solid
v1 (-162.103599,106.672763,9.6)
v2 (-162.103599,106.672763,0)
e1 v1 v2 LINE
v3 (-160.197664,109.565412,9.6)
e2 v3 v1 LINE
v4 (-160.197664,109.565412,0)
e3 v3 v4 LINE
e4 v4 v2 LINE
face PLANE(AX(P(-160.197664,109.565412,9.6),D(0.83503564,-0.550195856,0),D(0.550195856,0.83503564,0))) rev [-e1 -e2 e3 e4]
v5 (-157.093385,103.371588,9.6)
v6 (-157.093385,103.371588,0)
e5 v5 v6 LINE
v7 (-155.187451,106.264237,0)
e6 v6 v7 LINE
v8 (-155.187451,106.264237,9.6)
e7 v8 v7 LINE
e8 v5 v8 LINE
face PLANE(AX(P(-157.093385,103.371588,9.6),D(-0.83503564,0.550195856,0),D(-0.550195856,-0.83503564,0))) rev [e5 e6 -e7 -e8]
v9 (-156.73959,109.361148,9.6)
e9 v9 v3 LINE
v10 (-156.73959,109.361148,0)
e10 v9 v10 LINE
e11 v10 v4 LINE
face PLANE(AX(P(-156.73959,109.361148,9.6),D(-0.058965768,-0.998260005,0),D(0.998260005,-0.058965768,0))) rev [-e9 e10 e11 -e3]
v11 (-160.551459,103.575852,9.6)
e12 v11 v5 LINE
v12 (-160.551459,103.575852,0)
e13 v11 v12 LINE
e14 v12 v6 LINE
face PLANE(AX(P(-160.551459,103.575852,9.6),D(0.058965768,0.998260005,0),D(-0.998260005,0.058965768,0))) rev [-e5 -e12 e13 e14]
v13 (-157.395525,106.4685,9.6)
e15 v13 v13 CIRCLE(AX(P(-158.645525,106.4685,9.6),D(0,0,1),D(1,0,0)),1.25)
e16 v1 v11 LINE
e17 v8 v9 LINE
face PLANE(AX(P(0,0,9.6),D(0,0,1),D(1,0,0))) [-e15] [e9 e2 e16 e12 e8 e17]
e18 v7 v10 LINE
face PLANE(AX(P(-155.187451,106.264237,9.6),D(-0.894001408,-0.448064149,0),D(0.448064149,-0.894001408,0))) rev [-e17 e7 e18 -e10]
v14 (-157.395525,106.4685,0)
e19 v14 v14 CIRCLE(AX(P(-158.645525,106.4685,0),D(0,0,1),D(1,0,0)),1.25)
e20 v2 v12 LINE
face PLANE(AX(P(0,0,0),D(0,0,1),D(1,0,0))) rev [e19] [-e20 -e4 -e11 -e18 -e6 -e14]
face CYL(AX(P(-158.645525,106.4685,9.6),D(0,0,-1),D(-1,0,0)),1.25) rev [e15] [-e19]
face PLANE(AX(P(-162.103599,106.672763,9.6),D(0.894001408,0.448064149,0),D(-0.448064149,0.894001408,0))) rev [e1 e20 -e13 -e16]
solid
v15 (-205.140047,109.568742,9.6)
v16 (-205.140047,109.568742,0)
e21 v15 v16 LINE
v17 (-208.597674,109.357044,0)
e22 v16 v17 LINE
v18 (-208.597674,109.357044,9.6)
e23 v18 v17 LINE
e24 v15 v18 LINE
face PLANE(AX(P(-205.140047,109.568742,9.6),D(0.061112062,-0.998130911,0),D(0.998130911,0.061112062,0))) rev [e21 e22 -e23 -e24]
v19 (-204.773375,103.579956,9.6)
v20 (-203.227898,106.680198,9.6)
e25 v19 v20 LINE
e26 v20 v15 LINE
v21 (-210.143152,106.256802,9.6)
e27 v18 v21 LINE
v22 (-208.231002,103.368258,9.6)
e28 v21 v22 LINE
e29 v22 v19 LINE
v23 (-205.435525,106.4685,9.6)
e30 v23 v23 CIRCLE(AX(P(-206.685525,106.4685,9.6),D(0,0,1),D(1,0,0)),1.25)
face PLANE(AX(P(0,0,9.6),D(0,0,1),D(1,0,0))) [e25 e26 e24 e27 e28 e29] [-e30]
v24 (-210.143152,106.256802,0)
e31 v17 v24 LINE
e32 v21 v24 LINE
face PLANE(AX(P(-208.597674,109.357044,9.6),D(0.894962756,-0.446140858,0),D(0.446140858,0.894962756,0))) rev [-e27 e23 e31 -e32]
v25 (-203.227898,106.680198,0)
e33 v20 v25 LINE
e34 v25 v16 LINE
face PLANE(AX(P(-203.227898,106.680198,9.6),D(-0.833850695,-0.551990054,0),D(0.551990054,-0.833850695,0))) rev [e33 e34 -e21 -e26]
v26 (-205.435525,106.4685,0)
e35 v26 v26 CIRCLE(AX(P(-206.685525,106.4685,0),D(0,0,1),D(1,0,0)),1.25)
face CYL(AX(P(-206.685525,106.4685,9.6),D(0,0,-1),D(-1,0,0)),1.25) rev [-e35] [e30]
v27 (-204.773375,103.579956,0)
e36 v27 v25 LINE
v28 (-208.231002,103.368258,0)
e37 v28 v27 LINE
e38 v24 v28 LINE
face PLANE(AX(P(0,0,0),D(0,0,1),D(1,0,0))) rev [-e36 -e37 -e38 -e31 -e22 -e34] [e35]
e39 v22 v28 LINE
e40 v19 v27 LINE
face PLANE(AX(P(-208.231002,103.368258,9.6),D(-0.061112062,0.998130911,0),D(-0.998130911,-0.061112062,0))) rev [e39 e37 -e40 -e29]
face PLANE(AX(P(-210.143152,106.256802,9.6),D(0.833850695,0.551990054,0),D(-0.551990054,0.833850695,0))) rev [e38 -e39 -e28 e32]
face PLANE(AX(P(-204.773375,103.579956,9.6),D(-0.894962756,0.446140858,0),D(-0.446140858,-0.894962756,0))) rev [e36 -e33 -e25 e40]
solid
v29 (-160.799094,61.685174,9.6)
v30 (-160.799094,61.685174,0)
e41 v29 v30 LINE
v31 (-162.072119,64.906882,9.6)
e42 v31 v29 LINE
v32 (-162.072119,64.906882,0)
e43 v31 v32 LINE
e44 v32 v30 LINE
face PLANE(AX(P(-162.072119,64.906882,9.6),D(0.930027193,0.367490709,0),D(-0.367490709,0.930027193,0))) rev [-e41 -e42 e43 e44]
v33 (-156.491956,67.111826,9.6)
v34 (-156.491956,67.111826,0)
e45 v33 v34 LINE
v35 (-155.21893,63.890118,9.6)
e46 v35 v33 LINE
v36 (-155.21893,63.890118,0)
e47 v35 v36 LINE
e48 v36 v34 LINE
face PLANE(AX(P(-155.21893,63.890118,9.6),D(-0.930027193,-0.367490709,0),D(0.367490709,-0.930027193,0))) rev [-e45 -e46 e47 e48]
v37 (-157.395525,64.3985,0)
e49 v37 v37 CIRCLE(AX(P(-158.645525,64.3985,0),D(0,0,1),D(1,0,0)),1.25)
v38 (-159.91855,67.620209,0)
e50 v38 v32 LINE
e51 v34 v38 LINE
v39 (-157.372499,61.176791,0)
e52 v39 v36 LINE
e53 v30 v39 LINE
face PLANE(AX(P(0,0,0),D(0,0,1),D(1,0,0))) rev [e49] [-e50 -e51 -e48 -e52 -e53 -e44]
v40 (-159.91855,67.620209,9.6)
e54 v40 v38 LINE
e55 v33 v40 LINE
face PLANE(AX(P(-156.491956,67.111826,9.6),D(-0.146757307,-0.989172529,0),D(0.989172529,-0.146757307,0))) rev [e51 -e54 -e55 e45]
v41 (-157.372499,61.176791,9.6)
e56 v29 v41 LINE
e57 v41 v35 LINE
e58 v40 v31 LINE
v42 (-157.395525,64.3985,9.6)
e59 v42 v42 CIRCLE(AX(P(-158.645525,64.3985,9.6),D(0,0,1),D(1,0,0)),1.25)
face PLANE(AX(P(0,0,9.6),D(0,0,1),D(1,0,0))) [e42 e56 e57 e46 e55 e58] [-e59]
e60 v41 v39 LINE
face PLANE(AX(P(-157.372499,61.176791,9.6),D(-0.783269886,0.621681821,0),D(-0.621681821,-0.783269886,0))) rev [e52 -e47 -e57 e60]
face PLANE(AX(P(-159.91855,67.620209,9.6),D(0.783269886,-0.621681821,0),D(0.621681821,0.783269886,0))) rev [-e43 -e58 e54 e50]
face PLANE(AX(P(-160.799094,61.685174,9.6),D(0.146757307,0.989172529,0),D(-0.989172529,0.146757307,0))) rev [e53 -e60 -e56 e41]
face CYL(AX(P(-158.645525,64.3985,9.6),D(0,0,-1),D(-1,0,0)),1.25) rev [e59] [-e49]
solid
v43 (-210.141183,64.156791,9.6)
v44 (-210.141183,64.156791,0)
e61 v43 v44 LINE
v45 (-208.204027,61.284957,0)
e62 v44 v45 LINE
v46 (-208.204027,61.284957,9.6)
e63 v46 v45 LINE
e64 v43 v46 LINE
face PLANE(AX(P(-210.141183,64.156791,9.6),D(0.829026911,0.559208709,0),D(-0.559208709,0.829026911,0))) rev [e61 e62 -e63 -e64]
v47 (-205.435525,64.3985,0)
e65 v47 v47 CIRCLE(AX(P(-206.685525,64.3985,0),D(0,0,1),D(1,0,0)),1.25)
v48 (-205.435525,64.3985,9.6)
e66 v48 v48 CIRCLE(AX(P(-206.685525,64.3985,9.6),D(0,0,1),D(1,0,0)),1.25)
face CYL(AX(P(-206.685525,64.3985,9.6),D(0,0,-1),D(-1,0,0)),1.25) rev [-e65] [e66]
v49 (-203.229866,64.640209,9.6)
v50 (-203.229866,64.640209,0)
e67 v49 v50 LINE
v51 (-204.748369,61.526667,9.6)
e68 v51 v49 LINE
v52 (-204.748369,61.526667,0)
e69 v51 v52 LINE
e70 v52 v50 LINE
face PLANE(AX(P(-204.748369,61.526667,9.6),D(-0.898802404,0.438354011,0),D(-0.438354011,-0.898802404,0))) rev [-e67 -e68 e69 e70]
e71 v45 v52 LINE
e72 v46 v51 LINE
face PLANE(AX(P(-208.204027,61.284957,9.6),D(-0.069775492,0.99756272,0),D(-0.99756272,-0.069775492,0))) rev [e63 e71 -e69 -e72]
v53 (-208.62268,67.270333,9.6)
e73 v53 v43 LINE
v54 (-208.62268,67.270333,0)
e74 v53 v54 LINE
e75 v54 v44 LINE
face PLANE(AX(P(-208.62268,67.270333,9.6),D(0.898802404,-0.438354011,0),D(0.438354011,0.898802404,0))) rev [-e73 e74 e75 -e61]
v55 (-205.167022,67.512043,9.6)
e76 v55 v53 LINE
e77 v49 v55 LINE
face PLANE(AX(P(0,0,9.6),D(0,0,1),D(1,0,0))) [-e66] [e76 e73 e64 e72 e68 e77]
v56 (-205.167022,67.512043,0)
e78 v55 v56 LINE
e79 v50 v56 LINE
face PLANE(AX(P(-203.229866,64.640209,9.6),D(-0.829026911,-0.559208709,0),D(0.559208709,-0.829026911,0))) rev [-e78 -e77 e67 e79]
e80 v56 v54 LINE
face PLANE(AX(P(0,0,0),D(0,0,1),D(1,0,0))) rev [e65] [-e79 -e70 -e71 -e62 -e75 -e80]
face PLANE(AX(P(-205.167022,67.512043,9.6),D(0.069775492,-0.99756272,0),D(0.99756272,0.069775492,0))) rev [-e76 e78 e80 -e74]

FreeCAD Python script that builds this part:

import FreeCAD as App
import Part
import Sketcher

V = App.Vector


def add_polygon(sketch, points):
    """Adds a closed chain of lines whose ends are joined by coincident constraints."""
    first, n = sketch.GeometryCount, len(points)
    for a, b in zip(points, points[1:] + points[:1]):
        sketch.addGeometry(Part.LineSegment(App.Vector(*a, 0), App.Vector(*b, 0)), False)
    for i in range(n):
        sketch.addConstraint(Sketcher.Constraint("Coincident", first + i, 2, first + (i + 1) % n, 1))

doc = App.newDocument("Part")
body = doc.addObject("PartDesign::Body", "Body")

# Sketch on XY plane
sketch1 = body.newObject("Sketcher::SketchObject", "Sketch")
sketch1.AttachmentSupport = (doc.getObject("XY_Plane"), [""])
sketch1.MapMode = "FlatFace"
add_polygon(sketch1, [(-204.8, 103.6), (-203.2, 106.7), (-205.1, 109.6), (-208.6, 109.4), (-210.1, 106.3), (-208.2, 103.4)])  # lines 0-5
sketch1.addGeometry(Part.Circle(V(-206.7, 106.5, 0), V(0, 0, 1), 1.2), False)  # 6
sketch1.addConstraint([
    Sketcher.Constraint("Parallel", 0, 3),
    Sketcher.Constraint("Parallel", 1, 4),
    Sketcher.Constraint("Parallel", 2, 5),
    Sketcher.Constraint("Equal", 0, 1),
    Sketcher.Constraint("Equal", 1, 2),
    Sketcher.Constraint("Equal", 2, 3),
    Sketcher.Constraint("Diameter", 6, 2.5),
    Sketcher.Constraint("DistanceX", 4, 2, -1, 1, 208.231002),
    Sketcher.Constraint("Distance", 0, 3.464102),
    Sketcher.Constraint("DistanceY", -1, 1, 6, 3, 106.4685),
    Sketcher.Constraint("DistanceY", -1, 1, 0, 2, 106.680198),
    Sketcher.Constraint("DistanceY", -1, 1, 3, 2, 106.256802),
    Sketcher.Constraint("DistanceY", 2, 2, 1, 2, 0.211698),
    Sketcher.Constraint("DistanceY", -1, 1, 1, 2, 109.568742),
    Sketcher.Constraint("DistanceX", 2, 2, 6, 3, 1.91215),
])
pad1 = body.newObject("PartDesign::Pad", "Pad")
pad1.Profile = sketch1
pad1.Length = 9.6
body2 = doc.addObject("PartDesign::Body", "Body001")

# Sketch on XY plane
sketch2 = body2.newObject("Sketcher::SketchObject", "Sketch001")
sketch2.AttachmentSupport = (doc.getObject("XY_Plane001"), [""])
sketch2.MapMode = "FlatFace"
add_polygon(sketch2, [(-157.1, 103.4), (-155.2, 106.3), (-156.7, 109.4), (-160.2, 109.6), (-162.1, 106.7), (-160.6, 103.6)])  # lines 0-5
sketch2.addGeometry(Part.Circle(V(-158.6, 106.5, 0), V(0, 0, 1), 1.2), False)  # 6
sketch2.addConstraint([
    Sketcher.Constraint("Parallel", 0, 3),
    Sketcher.Constraint("Parallel", 1, 4),
    Sketcher.Constraint("Parallel", 2, 5),
    Sketcher.Constraint("Equal", 0, 1),
    Sketcher.Constraint("Equal", 1, 2),
    Sketcher.Constraint("Equal", 2, 3),
    Sketcher.Constraint("Diameter", 6, 2.5),
    Sketcher.Constraint("Distance", 0, 3.464102),
    Sketcher.Constraint("DistanceY", -1, 1, 6, 3, 106.4685),
    Sketcher.Constraint("DistanceX", 3, 2, -1, 1, 162.103599),
    Sketcher.Constraint("DistanceX", 0, 2, -1, 1, 155.187451),
    Sketcher.Constraint("DistanceX", 1, 2, -1, 1, 156.73959),
    Sketcher.Constraint("DistanceY", -1, 1, 1, 2, 109.361148),
    Sketcher.Constraint("DistanceY", -1, 1, 2, 2, 109.565412),
    Sketcher.Constraint("DistanceX", 2, 2, 6, 3, 1.55214),
])
pad2 = body2.newObject("PartDesign::Pad", "Pad001")
pad2.Profile = sketch2
pad2.Length = 9.6
body3 = doc.addObject("PartDesign::Body", "Body002")

# Sketch on XY plane
sketch3 = body3.newObject("Sketcher::SketchObject", "Sketch002")
sketch3.AttachmentSupport = (doc.getObject("XY_Plane002"), [""])
sketch3.MapMode = "FlatFace"
add_polygon(sketch3, [(-204.748369, 61.526667), (-203.229866, 64.640209), (-205.167022, 67.512043), (-208.62268, 67.270333), (-210.141183, 64.156791), (-208.204027, 61.284957)])  # lines 0-5
sketch3.addGeometry(Part.Circle(V(-206.685525, 64.3985, 0), V(0, 0, 1), 1.25), False)  # 6
sketch3.addConstraint([
    Sketcher.Constraint("Diameter", 6, 2.5),
    Sketcher.Constraint("Distance", 0, 3.464102),
    Sketcher.Constraint("Distance", 1, 3.464102),
    Sketcher.Constraint("Distance", 2, 3.464102),
    Sketcher.Constraint("Distance", 3, 3.464102),
    Sketcher.Constraint("Distance", 4, 3.464102),
    Sketcher.Constraint("Distance", 5, 3.464102),
    Sketcher.Constraint("DistanceY", -1, 1, 6, 3, 64.3985),
    Sketcher.Constraint("DistanceY", -1, 1, 0, 2, 64.640209),
    Sketcher.Constraint("DistanceX", 1, 2, -1, 1, 205.167022),
    Sketcher.Constraint("DistanceX", 2, 2, -1, 1, 208.62268),
    Sketcher.Constraint("DistanceY", -1, 1, 3, 2, 64.156791),
    Sketcher.Constraint("DistanceX", 5, 2, -1, 1, 204.748369),
    Sketcher.Constraint("DistanceX", 6, 3, 0, 2, 3.455659),
    Sketcher.Constraint("DistanceX", 3, 2, 6, 3, 3.455659),
])
pad3 = body3.newObject("PartDesign::Pad", "Pad002")
pad3.Profile = sketch3
pad3.Length = 9.6
body4 = doc.addObject("PartDesign::Body", "Body003")

# Sketch on XY plane
sketch4 = body4.newObject("Sketcher::SketchObject", "Sketch003")
sketch4.AttachmentSupport = (doc.getObject("XY_Plane003"), [""])
sketch4.MapMode = "FlatFace"
add_polygon(sketch4, [(-157.4, 61.2), (-155.2, 63.9), (-156.5, 67.1), (-159.9, 67.6), (-162.1, 64.9), (-160.8, 61.7)])  # lines 0-5
sketch4.addGeometry(Part.Circle(V(-158.6, 64.4, 0), V(0, 0, 1), 1.2), False)  # 6
sketch4.addConstraint([
    Sketcher.Constraint("Parallel", 0, 3),
    Sketcher.Constraint("Parallel", 1, 4),
    Sketcher.Constraint("Parallel", 2, 5),
    Sketcher.Constraint("Equal", 0, 1),
    Sketcher.Constraint("Equal", 1, 2),
    Sketcher.Constraint("Equal", 2, 3),
    Sketcher.Constraint("Diameter", 6, 2.5),
    Sketcher.Constraint("Distance", 0, 3.464102),
    Sketcher.Constraint("DistanceY", -1, 1, 6, 3, 64.3985),
    Sketcher.Constraint("DistanceX", 5, 2, -1, 1, 157.372499),
    Sketcher.Constraint("DistanceX", 0, 2, -1, 1, 155.21893),
    Sketcher.Constraint("DistanceX", 2, 2, -1, 1, 159.91855),
    Sketcher.Constraint("DistanceY", -1, 1, 2, 2, 67.620209),
    Sketcher.Constraint("DistanceY", -1, 1, 5, 2, 61.176791),
    Sketcher.Constraint("DistanceX", 6, 3, 1, 2, 2.153569),
])
pad4 = body4.newObject("PartDesign::Pad", "Pad003")
pad4.Profile = sketch4
pad4.Length = 9.6

doc.recompute()
